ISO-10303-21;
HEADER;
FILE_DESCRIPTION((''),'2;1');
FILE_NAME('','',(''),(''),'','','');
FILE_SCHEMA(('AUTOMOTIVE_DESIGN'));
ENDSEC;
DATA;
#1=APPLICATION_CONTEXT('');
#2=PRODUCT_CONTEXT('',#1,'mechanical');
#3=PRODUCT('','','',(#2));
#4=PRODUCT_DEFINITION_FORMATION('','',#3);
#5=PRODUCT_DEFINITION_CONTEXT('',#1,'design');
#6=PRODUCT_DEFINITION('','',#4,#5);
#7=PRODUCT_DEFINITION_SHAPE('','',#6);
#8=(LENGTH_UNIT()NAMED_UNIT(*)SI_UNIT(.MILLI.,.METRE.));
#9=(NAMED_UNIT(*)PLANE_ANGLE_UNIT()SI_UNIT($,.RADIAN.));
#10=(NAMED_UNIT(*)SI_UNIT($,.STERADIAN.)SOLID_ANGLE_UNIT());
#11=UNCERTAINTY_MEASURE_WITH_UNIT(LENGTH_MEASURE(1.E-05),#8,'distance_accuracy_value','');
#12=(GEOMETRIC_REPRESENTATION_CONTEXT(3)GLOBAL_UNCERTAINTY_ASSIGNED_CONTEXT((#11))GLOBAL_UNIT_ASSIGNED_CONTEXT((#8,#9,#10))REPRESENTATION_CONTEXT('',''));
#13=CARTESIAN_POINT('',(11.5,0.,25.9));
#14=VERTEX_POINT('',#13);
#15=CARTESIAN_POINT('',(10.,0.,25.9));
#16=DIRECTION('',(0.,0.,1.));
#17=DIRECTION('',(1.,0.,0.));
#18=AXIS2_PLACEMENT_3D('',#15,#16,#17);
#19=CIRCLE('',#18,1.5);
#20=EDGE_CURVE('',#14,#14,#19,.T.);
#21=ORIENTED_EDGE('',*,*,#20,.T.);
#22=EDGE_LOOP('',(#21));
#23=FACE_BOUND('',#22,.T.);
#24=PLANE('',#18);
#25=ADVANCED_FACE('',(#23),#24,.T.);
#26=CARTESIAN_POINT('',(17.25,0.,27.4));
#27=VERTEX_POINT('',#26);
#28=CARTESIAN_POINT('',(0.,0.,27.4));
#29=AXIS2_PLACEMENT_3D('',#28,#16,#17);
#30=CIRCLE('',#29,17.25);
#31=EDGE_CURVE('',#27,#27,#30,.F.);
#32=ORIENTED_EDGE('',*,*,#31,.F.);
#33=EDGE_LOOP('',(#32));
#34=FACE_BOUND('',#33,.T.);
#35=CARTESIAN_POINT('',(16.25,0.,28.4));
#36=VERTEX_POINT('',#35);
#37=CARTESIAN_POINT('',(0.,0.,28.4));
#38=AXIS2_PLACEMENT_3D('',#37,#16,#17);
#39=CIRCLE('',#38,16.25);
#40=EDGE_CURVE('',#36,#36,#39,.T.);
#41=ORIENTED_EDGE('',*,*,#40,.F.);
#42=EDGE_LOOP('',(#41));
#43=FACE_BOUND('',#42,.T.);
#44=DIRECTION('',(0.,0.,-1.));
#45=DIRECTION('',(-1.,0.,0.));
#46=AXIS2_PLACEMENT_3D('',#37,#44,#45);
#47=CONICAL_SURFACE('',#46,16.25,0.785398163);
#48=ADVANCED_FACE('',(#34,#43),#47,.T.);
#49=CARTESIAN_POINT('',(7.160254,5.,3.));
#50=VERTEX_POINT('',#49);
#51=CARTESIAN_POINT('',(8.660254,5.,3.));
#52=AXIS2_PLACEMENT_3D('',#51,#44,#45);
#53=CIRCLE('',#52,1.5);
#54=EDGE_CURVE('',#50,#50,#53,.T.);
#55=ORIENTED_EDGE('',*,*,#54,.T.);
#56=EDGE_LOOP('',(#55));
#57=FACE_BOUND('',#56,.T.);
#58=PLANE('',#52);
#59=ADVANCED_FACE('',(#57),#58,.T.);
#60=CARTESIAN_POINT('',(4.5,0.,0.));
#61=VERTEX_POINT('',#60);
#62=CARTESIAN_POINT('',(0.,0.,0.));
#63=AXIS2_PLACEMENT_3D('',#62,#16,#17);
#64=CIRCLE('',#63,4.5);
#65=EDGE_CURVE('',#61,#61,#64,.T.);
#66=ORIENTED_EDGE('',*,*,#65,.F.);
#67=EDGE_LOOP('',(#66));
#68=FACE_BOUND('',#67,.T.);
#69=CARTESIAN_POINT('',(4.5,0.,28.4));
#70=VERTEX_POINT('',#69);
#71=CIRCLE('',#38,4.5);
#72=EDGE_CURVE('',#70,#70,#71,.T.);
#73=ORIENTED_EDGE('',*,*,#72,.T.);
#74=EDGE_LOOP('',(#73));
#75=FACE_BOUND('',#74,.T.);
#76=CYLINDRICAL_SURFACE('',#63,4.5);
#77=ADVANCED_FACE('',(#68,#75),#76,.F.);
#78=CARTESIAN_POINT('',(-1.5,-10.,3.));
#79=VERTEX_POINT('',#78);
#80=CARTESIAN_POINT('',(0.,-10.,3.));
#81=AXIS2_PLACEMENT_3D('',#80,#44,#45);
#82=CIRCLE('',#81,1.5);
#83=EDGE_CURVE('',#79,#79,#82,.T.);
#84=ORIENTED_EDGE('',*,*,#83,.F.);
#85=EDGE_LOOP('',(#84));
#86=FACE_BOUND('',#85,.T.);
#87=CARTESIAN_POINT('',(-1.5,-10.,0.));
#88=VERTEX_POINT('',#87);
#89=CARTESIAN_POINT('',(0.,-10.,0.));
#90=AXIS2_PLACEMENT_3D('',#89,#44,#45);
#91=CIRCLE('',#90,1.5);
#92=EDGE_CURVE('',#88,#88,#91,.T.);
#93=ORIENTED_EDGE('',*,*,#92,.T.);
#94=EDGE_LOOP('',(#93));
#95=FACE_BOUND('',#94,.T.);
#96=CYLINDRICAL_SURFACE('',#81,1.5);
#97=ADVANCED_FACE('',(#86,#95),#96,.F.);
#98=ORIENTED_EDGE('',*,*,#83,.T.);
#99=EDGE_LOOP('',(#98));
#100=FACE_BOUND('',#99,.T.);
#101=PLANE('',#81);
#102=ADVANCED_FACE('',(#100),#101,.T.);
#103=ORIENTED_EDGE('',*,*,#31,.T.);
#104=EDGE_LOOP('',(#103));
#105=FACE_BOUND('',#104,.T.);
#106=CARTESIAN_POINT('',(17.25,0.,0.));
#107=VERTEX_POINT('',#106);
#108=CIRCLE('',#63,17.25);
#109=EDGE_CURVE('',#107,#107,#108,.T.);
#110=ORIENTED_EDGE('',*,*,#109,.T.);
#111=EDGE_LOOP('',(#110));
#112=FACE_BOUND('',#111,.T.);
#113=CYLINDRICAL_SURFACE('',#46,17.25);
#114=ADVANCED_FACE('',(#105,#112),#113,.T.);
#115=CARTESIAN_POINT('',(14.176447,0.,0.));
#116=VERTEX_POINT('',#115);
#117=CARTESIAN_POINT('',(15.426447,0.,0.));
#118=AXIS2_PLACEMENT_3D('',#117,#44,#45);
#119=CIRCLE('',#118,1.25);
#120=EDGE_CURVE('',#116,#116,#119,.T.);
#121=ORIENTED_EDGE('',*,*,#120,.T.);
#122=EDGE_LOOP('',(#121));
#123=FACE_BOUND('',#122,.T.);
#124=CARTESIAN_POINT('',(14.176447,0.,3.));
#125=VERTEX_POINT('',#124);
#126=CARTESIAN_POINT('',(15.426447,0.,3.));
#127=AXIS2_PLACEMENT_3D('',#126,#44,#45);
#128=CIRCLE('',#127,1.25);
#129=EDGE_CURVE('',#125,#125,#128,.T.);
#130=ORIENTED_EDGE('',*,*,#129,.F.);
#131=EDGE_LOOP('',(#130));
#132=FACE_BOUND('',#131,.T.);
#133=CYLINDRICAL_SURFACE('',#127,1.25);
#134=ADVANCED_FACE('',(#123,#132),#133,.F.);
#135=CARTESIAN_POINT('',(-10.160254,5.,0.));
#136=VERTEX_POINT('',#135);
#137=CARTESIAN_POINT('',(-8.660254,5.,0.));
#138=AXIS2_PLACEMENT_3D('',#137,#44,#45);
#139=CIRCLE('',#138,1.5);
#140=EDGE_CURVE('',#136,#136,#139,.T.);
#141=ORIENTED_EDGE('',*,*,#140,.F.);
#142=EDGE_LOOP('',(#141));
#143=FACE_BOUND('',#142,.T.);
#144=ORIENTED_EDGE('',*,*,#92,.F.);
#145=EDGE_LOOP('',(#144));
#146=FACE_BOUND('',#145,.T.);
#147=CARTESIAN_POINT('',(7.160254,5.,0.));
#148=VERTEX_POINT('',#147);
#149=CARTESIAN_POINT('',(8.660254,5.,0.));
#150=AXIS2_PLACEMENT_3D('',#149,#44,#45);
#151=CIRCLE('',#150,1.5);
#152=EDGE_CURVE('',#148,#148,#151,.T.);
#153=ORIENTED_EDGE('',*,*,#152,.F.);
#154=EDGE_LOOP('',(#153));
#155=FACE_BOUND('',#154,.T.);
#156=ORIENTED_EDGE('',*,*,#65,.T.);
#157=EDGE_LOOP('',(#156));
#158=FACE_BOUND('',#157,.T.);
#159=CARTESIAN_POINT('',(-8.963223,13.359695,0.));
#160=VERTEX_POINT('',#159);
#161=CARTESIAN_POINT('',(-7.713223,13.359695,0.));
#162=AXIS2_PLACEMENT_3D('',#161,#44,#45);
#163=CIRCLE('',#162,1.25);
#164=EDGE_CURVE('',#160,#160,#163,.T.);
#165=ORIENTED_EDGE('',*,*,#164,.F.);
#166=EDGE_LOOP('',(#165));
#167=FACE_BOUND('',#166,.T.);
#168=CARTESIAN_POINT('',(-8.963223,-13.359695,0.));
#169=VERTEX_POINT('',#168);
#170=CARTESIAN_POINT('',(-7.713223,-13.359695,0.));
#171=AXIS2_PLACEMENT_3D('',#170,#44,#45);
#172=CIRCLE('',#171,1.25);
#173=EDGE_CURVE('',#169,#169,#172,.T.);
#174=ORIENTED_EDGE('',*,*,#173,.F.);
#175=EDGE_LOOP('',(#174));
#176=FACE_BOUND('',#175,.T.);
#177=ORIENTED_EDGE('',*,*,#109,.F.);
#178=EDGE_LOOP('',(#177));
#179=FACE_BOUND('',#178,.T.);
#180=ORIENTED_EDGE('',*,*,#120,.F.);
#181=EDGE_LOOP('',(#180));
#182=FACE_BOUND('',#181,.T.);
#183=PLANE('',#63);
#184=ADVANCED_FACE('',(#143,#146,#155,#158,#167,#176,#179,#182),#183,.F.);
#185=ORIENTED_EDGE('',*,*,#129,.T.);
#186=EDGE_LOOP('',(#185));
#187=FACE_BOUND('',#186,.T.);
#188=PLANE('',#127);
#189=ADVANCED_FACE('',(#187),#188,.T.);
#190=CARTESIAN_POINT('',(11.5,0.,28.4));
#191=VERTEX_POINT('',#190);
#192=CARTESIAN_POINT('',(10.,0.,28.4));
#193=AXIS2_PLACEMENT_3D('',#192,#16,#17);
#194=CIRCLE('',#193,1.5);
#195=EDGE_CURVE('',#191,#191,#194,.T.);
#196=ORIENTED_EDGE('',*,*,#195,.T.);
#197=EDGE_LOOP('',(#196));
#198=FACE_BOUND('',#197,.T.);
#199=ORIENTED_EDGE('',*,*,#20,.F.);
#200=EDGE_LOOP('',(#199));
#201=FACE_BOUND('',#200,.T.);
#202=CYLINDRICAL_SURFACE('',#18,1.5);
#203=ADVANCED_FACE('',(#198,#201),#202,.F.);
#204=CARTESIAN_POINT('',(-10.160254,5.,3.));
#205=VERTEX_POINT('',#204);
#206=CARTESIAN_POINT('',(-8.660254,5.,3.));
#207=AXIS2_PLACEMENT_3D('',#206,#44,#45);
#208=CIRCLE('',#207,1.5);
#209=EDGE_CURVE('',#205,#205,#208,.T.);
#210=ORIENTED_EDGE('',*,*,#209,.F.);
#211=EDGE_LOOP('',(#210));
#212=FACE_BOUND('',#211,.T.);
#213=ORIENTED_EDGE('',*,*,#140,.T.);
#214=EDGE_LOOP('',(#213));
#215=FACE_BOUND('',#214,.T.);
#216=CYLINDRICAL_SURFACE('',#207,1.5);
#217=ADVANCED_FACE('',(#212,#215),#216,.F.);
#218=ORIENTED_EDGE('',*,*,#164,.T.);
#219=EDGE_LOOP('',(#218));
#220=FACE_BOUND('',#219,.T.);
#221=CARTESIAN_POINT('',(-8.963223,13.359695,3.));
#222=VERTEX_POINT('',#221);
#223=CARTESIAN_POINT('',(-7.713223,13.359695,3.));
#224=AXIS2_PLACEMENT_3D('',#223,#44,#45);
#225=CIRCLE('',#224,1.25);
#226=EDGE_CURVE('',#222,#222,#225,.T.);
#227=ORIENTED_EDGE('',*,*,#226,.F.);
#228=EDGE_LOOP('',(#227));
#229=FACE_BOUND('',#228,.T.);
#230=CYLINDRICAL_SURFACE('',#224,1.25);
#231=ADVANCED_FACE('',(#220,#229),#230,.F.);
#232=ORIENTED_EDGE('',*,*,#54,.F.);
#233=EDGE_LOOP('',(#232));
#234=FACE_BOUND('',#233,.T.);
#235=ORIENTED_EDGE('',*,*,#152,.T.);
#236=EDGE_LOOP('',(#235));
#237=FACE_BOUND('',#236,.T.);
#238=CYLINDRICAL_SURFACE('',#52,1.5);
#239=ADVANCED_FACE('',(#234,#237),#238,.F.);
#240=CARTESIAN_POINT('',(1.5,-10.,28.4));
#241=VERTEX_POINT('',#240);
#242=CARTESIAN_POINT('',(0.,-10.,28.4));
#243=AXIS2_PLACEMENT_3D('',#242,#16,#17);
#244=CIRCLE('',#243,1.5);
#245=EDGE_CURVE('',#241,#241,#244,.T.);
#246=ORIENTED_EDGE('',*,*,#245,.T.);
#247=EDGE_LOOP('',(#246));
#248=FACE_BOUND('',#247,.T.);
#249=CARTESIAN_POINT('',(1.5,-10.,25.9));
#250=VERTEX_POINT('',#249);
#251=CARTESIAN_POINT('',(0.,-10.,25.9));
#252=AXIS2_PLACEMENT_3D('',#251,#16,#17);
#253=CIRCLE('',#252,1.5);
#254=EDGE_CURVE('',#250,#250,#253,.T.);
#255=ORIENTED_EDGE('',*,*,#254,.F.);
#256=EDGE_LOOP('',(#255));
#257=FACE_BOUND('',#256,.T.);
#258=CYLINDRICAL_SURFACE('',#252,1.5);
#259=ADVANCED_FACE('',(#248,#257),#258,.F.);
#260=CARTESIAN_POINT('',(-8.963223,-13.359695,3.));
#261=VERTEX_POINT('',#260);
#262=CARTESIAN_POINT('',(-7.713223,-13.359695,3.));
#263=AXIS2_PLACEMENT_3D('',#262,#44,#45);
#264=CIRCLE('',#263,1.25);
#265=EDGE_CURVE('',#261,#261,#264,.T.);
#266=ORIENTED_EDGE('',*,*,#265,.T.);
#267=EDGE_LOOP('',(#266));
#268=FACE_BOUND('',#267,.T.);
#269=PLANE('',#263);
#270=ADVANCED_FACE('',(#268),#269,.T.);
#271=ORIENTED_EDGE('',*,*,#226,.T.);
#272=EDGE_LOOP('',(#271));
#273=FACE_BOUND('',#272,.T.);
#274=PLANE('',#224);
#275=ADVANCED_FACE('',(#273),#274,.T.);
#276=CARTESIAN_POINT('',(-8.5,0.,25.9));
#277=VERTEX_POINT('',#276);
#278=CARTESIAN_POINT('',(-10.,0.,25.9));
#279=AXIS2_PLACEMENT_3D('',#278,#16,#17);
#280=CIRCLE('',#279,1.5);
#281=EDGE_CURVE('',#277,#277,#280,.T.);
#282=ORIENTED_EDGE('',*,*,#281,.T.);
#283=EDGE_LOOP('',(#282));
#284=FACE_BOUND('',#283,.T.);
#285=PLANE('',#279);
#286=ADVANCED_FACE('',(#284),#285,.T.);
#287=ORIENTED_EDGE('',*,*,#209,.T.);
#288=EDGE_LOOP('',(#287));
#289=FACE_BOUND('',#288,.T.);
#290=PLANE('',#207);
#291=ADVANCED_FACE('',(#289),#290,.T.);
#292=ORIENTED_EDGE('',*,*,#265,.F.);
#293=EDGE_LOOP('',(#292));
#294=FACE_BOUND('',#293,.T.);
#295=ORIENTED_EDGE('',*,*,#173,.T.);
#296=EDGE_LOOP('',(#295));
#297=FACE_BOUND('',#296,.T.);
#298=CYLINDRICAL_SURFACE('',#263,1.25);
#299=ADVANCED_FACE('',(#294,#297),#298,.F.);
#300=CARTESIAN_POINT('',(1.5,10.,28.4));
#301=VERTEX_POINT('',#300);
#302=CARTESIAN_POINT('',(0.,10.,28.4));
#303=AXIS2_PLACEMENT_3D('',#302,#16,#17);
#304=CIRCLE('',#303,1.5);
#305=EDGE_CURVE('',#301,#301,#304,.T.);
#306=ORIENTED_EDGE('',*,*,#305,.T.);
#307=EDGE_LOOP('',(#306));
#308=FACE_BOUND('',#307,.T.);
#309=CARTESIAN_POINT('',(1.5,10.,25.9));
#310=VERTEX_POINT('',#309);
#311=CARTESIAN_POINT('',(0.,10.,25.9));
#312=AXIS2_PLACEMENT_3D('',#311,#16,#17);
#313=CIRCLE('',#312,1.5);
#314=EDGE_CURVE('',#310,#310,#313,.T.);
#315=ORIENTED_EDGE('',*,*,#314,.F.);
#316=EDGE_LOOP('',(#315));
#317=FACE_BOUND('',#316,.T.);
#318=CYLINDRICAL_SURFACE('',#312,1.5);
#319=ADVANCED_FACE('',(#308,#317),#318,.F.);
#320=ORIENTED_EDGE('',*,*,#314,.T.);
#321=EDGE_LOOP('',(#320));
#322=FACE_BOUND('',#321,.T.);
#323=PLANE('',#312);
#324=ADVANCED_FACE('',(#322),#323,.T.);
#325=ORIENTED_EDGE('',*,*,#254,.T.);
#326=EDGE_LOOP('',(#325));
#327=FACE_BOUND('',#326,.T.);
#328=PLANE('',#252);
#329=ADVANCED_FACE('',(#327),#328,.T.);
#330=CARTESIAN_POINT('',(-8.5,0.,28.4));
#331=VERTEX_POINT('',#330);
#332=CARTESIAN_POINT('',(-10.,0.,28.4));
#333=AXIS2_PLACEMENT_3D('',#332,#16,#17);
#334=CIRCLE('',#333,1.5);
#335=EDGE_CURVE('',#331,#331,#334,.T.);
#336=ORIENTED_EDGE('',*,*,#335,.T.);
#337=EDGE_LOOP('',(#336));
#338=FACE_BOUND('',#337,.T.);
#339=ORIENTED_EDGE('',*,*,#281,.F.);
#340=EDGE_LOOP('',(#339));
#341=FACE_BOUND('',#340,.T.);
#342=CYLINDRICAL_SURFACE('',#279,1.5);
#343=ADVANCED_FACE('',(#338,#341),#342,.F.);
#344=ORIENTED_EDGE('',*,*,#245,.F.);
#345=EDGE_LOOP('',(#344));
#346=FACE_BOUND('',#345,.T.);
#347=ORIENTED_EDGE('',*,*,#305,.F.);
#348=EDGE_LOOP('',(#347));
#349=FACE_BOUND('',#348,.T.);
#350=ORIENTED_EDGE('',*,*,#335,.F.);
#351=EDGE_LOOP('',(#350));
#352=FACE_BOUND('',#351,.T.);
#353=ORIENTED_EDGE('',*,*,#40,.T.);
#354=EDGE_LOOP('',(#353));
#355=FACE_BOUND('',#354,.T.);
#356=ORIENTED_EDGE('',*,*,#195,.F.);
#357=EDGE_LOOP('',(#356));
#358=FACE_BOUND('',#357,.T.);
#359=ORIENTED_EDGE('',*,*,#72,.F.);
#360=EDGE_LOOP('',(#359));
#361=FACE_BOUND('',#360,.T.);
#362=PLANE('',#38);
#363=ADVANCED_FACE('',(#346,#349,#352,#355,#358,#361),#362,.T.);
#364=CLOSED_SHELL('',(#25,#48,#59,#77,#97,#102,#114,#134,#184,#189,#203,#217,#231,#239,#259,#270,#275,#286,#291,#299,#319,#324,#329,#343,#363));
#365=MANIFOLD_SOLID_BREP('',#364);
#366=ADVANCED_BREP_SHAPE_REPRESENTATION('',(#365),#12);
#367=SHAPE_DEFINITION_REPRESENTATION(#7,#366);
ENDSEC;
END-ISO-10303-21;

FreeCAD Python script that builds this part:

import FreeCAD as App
import Part
import Sketcher


def edges_at(feature, points):
    """Names of the edges that pass closest to the given points."""
    edges = feature.Shape.Edges
    near = lambda p: min(range(len(edges)), key=lambda i: edges[i].distToShape(Part.Vertex(*p))[0])
    return sorted({f"Edge{near(p) + 1}" for p in points})

doc = App.newDocument("Part")
body = doc.addObject("PartDesign::Body", "Body")

sketch1 = body.newObject("Sketcher::SketchObject", "Sketch")
sketch1.AttachmentSupport = (doc.getObject("XY_Plane"), [""])
sketch1.MapMode = "FlatFace"
sketch1.addGeometry(Part.Circle(App.Vector(0, 0, 0), App.Vector(0, 0, 1), 17), False)
sketch1.addConstraint(Sketcher.Constraint("Coincident", 0, 3, -1, 1))
sketch1.addConstraint(Sketcher.Constraint("Diameter", 0, 34.5))
pad1 = body.newObject("PartDesign::Pad", "Pad")
pad1.Profile = sketch1
pad1.Length = 28.4
doc.recompute()

chamfer = body.newObject("PartDesign::Chamfer", "Chamfer")
chamfer.Base = (pad1, edges_at(pad1, [(-17.25, 0, 28.4)]))
chamfer.Size = 1

sketch2 = body.newObject("Sketcher::SketchObject", "Sketch001")
sketch2.AttachmentSupport = (doc.getObject("XY_Plane"), [""])
sketch2.MapMode = "FlatFace"
sketch2.addGeometry(Part.Circle(App.Vector(-8.7, 5, 0), App.Vector(0, 0, 1), 1.5), False)
sketch2.addGeometry(Part.Circle(App.Vector(0, -10, 0), App.Vector(0, 0, 1), 1.5), False)
sketch2.addGeometry(Part.Circle(App.Vector(8.7, 5, 0), App.Vector(0, 0, 1), 1.5), False)
sketch2.addGeometry(Part.Circle(App.Vector(-7.7, 13.4, 0), App.Vector(0, 0, 1), 1.2), False)
sketch2.addGeometry(Part.Circle(App.Vector(-7.7, -13.4, 0), App.Vector(0, 0, 1), 1.2), False)
sketch2.addGeometry(Part.Circle(App.Vector(15.4, 0, 0), App.Vector(0, 0, 1), 1.2), False)
sketch2.addConstraint(Sketcher.Constraint("Equal", 0, 1))
sketch2.addConstraint(Sketcher.Constraint("Equal", 1, 2))
sketch2.addConstraint(Sketcher.Constraint("Equal", 3, 4))
sketch2.addConstraint(Sketcher.Constraint("Equal", 4, 5))
sketch2.addConstraint(Sketcher.Constraint("Symmetric", 0, 3, 2, 3, -2))
sketch2.addConstraint(Sketcher.Constraint("Symmetric", 3, 3, 4, 3, -1))
sketch2.addConstraint(Sketcher.Constraint("PointOnObject", 1, 3, -2))
sketch2.addConstraint(Sketcher.Constraint("PointOnObject", 5, 3, -1))
sketch2.addConstraint(Sketcher.Constraint("Diameter", 0, 3.0))
sketch2.addConstraint(Sketcher.Constraint("Diameter", 3, 2.5))
sketch2.addConstraint(Sketcher.Constraint("DistanceY", -1, 1, 0, 3, 5.0))
sketch2.addConstraint(Sketcher.Constraint("DistanceY", 1, 3, -1, 1, 10.0))
sketch2.addConstraint(Sketcher.Constraint("DistanceX", 0, 3, 5, 3, 24.086701))
sketch2.addConstraint(Sketcher.Constraint("DistanceX", 0, 3, 2, 3, 17.320508))
sketch2.addConstraint(Sketcher.Constraint("DistanceX", 0, 3, 3, 3, 0.947031))
sketch2.addConstraint(Sketcher.Constraint("DistanceY", 4, 3, 3, 3, 26.71939))
pocket1 = body.newObject("PartDesign::Pocket", "Pocket")
pocket1.Profile = sketch2
pocket1.Length = 3
pocket1.Reversed = True

sketch3 = body.newObject("Sketcher::SketchObject", "Sketch002")
sketch3.AttachmentSupport = (doc.getObject("XY_Plane"), [""])
sketch3.MapMode = "FlatFace"
sketch3.AttachmentOffset = App.Placement(App.Vector(0, 0, 25.9), App.Rotation())
sketch3.addGeometry(Part.Circle(App.Vector(0, 10, 0), App.Vector(0, 0, 1), 1.5), False)
sketch3.addGeometry(Part.Circle(App.Vector(10, 0, 0), App.Vector(0, 0, 1), 1.5), False)
sketch3.addGeometry(Part.Circle(App.Vector(0, -10, 0), App.Vector(0, 0, 1), 1.5), False)
sketch3.addGeometry(Part.Circle(App.Vector(-10, 0, 0), App.Vector(0, 0, 1), 1.5), False)
sketch3.addConstraint(Sketcher.Constraint("Equal", 0, 1))
sketch3.addConstraint(Sketcher.Constraint("Equal", 1, 2))
sketch3.addConstraint(Sketcher.Constraint("Equal", 2, 3))
sketch3.addConstraint(Sketcher.Constraint("Symmetric", 0, 3, 2, 3, -1, 1))
sketch3.addConstraint(Sketcher.Constraint("Symmetric", 1, 3, 3, 3, -1, 1))
sketch3.addConstraint(Sketcher.Constraint("PointOnObject", 0, 3, -2))
sketch3.addConstraint(Sketcher.Constraint("PointOnObject", 1, 3, -1))
sketch3.addConstraint(Sketcher.Constraint("Diameter", 0, 3.0))
sketch3.addConstraint(Sketcher.Constraint("DistanceY", -1, 1, 0, 3, 10.0))
sketch3.addConstraint(Sketcher.Constraint("DistanceX", -1, 1, 1, 3, 10.0))
pocket2 = body.newObject("PartDesign::Pocket", "Pocket001")
pocket2.Profile = sketch3
pocket2.Length = 2.5
pocket2.Reversed = True

sketch4 = body.newObject("Sketcher::SketchObject", "Sketch003")
sketch4.AttachmentSupport = (doc.getObject("XY_Plane"), [""])
sketch4.MapMode = "FlatFace"
sketch4.AttachmentOffset = App.Placement(App.Vector(0, 0, 28.4), App.Rotation())
sketch4.addGeometry(Part.Circle(App.Vector(0, 0, 0), App.Vector(0, 0, 1), 4.5), False)
sketch4.addConstraint(Sketcher.Constraint("Coincident", 0, 3, -1, 1))
sketch4.addConstraint(Sketcher.Constraint("Diameter", 0, 9.0))
pocket3 = body.newObject("PartDesign::Pocket", "Pocket002")
pocket3.Profile = sketch4
pocket3.Type = "ThroughAll"

doc.recompute()
